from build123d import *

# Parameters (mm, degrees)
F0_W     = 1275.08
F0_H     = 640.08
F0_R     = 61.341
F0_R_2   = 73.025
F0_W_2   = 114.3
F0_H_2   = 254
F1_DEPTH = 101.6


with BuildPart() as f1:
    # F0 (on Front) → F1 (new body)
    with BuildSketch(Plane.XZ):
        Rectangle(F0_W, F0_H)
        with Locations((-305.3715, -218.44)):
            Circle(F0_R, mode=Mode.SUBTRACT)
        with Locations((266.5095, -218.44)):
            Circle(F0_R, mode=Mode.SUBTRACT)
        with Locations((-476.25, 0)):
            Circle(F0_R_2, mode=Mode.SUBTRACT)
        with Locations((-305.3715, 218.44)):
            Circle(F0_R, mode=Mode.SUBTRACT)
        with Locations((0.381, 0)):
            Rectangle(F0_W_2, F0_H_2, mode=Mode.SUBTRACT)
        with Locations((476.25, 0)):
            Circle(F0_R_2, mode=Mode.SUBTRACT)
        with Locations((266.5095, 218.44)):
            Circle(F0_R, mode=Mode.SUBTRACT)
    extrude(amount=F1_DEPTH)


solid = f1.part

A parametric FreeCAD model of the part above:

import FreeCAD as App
import Part
import Sketcher

V = App.Vector
Q = App.Units.Quantity

doc = App.newDocument("Part")
body = doc.addObject("PartDesign::Body", "Body")

sketch1 = body.newObject("Sketcher::SketchObject", "Sketch")
sketch1.AttachmentSupport = (doc.getObject("XZ_Plane"), [""])
sketch1.MapMode = "FlatFace"
sketch1.addGeometry([
    Part.LineSegment(V(-637.54, 320.04, 0), V(-637.54, -320.04, 0)),
    Part.LineSegment(V(-637.54, -320.04, 0), V(637.54, -320.04, 0)),
    Part.LineSegment(V(637.54, -320.04, 0), V(637.54, 320.04, 0)),
    Part.LineSegment(V(637.54, 320.04, 0), V(-637.54, 320.04, 0)),
    Part.Circle(V(-305.3715, -218.44, 0), V(0, 0, 1), 61.341),
    Part.Circle(V(266.5095, -218.44, 0), V(0, 0, 1), 61.341),
    Part.Circle(V(-476.25, 0, 0), V(0, 0, 1), 73.025),
    Part.Circle(V(-305.3715, 218.44, 0), V(0, 0, 1), 61.341),
    Part.LineSegment(V(57.531, -127, 0), V(-56.769, -127, 0)),
    Part.LineSegment(V(-56.769, -127, 0), V(-56.769, 127, 0)),
    Part.LineSegment(V(-56.769, 127, 0), V(57.531, 127, 0)),
    Part.LineSegment(V(57.531, 127, 0), V(57.531, -127, 0)),
    Part.Circle(V(476.25, 0, 0), V(0, 0, 1), 73.025),
    Part.Circle(V(266.5095, 218.44, 0), V(0, 0, 1), 61.341),
], False)
sketch1.addConstraint([
    Sketcher.Constraint("Coincident", 0, 2, 1, 1),
    Sketcher.Constraint("Coincident", 1, 2, 2, 1),
    Sketcher.Constraint("Coincident", 2, 2, 3, 1),
    Sketcher.Constraint("Coincident", 3, 2, 0, 1),
    Sketcher.Constraint("Coincident", 8, 2, 9, 1),
    Sketcher.Constraint("Coincident", 9, 2, 10, 1),
    Sketcher.Constraint("Coincident", 10, 2, 11, 1),
    Sketcher.Constraint("Coincident", 11, 2, 8, 1),
    Sketcher.Constraint("Vertical", 0),
    Sketcher.Constraint("Horizontal", 1),
    Sketcher.Constraint("Vertical", 2),
    Sketcher.Constraint("Horizontal", 3),
    Sketcher.Constraint("Horizontal", 8),
    Sketcher.Constraint("Vertical", 9),
    Sketcher.Constraint("Horizontal", 10),
    Sketcher.Constraint("Vertical", 11),
    Sketcher.Constraint("Equal", 4, 5),
    Sketcher.Constraint("Equal", 5, 7),
    Sketcher.Constraint("Equal", 6, 12),
    Sketcher.Constraint("Equal", 7, 13),
    Sketcher.Constraint("Symmetric", 6, 3, 12, 3, -1, 1),
    Sketcher.Constraint("Symmetric", 0, 2, 2, 2, -1, 1),
    Sketcher.Constraint("Symmetric", 4, 3, 7, 3, -1),
    Sketcher.Constraint("Symmetric", 5, 3, 13, 3, -1),
    Sketcher.Constraint("PointOnObject", 6, 3, -1),
    Sketcher.Constraint("Horizontal", 4, 3, 5, 3),
    Sketcher.Constraint("Diameter", 4, Q("4.83 in")),
    Sketcher.Constraint("Diameter", 6, Q("5.75 in")),
    Sketcher.Constraint("DistanceY", 9, 1, 9, 2, Q("10 in")),
    Sketcher.Constraint("DistanceX", 1, 1, 1, 2, Q("50.2 in")),
    Sketcher.Constraint("DistanceX", 8, 2, 8, 1, Q("4.5 in")),
    Sketcher.Constraint("DistanceY", 0, 2, 0, 1, Q("25.2 in")),
    Sketcher.Constraint("DistanceY", 8, 2, -1, 1, Q("5 in")),
    Sketcher.Constraint("DistanceY", 0, 2, 4, 3, Q("4 in")),
    Sketcher.Constraint("DistanceX", 6, 3, 12, 3, Q("37.5 in")),
    Sketcher.Constraint("DistanceX", 8, 2, -1, 1, Q("2.235 in")),
    Sketcher.Constraint("DistanceX", 4, 3, 5, 3, Q("22.515 in")),
    Sketcher.Constraint("DistanceX", 4, 3, -1, 1, Q("12.0225 in")),
])
pad1 = body.newObject("PartDesign::Pad", "Pad")
pad1.Profile = sketch1
pad1.Length = Q("4 in")

doc.recompute()
